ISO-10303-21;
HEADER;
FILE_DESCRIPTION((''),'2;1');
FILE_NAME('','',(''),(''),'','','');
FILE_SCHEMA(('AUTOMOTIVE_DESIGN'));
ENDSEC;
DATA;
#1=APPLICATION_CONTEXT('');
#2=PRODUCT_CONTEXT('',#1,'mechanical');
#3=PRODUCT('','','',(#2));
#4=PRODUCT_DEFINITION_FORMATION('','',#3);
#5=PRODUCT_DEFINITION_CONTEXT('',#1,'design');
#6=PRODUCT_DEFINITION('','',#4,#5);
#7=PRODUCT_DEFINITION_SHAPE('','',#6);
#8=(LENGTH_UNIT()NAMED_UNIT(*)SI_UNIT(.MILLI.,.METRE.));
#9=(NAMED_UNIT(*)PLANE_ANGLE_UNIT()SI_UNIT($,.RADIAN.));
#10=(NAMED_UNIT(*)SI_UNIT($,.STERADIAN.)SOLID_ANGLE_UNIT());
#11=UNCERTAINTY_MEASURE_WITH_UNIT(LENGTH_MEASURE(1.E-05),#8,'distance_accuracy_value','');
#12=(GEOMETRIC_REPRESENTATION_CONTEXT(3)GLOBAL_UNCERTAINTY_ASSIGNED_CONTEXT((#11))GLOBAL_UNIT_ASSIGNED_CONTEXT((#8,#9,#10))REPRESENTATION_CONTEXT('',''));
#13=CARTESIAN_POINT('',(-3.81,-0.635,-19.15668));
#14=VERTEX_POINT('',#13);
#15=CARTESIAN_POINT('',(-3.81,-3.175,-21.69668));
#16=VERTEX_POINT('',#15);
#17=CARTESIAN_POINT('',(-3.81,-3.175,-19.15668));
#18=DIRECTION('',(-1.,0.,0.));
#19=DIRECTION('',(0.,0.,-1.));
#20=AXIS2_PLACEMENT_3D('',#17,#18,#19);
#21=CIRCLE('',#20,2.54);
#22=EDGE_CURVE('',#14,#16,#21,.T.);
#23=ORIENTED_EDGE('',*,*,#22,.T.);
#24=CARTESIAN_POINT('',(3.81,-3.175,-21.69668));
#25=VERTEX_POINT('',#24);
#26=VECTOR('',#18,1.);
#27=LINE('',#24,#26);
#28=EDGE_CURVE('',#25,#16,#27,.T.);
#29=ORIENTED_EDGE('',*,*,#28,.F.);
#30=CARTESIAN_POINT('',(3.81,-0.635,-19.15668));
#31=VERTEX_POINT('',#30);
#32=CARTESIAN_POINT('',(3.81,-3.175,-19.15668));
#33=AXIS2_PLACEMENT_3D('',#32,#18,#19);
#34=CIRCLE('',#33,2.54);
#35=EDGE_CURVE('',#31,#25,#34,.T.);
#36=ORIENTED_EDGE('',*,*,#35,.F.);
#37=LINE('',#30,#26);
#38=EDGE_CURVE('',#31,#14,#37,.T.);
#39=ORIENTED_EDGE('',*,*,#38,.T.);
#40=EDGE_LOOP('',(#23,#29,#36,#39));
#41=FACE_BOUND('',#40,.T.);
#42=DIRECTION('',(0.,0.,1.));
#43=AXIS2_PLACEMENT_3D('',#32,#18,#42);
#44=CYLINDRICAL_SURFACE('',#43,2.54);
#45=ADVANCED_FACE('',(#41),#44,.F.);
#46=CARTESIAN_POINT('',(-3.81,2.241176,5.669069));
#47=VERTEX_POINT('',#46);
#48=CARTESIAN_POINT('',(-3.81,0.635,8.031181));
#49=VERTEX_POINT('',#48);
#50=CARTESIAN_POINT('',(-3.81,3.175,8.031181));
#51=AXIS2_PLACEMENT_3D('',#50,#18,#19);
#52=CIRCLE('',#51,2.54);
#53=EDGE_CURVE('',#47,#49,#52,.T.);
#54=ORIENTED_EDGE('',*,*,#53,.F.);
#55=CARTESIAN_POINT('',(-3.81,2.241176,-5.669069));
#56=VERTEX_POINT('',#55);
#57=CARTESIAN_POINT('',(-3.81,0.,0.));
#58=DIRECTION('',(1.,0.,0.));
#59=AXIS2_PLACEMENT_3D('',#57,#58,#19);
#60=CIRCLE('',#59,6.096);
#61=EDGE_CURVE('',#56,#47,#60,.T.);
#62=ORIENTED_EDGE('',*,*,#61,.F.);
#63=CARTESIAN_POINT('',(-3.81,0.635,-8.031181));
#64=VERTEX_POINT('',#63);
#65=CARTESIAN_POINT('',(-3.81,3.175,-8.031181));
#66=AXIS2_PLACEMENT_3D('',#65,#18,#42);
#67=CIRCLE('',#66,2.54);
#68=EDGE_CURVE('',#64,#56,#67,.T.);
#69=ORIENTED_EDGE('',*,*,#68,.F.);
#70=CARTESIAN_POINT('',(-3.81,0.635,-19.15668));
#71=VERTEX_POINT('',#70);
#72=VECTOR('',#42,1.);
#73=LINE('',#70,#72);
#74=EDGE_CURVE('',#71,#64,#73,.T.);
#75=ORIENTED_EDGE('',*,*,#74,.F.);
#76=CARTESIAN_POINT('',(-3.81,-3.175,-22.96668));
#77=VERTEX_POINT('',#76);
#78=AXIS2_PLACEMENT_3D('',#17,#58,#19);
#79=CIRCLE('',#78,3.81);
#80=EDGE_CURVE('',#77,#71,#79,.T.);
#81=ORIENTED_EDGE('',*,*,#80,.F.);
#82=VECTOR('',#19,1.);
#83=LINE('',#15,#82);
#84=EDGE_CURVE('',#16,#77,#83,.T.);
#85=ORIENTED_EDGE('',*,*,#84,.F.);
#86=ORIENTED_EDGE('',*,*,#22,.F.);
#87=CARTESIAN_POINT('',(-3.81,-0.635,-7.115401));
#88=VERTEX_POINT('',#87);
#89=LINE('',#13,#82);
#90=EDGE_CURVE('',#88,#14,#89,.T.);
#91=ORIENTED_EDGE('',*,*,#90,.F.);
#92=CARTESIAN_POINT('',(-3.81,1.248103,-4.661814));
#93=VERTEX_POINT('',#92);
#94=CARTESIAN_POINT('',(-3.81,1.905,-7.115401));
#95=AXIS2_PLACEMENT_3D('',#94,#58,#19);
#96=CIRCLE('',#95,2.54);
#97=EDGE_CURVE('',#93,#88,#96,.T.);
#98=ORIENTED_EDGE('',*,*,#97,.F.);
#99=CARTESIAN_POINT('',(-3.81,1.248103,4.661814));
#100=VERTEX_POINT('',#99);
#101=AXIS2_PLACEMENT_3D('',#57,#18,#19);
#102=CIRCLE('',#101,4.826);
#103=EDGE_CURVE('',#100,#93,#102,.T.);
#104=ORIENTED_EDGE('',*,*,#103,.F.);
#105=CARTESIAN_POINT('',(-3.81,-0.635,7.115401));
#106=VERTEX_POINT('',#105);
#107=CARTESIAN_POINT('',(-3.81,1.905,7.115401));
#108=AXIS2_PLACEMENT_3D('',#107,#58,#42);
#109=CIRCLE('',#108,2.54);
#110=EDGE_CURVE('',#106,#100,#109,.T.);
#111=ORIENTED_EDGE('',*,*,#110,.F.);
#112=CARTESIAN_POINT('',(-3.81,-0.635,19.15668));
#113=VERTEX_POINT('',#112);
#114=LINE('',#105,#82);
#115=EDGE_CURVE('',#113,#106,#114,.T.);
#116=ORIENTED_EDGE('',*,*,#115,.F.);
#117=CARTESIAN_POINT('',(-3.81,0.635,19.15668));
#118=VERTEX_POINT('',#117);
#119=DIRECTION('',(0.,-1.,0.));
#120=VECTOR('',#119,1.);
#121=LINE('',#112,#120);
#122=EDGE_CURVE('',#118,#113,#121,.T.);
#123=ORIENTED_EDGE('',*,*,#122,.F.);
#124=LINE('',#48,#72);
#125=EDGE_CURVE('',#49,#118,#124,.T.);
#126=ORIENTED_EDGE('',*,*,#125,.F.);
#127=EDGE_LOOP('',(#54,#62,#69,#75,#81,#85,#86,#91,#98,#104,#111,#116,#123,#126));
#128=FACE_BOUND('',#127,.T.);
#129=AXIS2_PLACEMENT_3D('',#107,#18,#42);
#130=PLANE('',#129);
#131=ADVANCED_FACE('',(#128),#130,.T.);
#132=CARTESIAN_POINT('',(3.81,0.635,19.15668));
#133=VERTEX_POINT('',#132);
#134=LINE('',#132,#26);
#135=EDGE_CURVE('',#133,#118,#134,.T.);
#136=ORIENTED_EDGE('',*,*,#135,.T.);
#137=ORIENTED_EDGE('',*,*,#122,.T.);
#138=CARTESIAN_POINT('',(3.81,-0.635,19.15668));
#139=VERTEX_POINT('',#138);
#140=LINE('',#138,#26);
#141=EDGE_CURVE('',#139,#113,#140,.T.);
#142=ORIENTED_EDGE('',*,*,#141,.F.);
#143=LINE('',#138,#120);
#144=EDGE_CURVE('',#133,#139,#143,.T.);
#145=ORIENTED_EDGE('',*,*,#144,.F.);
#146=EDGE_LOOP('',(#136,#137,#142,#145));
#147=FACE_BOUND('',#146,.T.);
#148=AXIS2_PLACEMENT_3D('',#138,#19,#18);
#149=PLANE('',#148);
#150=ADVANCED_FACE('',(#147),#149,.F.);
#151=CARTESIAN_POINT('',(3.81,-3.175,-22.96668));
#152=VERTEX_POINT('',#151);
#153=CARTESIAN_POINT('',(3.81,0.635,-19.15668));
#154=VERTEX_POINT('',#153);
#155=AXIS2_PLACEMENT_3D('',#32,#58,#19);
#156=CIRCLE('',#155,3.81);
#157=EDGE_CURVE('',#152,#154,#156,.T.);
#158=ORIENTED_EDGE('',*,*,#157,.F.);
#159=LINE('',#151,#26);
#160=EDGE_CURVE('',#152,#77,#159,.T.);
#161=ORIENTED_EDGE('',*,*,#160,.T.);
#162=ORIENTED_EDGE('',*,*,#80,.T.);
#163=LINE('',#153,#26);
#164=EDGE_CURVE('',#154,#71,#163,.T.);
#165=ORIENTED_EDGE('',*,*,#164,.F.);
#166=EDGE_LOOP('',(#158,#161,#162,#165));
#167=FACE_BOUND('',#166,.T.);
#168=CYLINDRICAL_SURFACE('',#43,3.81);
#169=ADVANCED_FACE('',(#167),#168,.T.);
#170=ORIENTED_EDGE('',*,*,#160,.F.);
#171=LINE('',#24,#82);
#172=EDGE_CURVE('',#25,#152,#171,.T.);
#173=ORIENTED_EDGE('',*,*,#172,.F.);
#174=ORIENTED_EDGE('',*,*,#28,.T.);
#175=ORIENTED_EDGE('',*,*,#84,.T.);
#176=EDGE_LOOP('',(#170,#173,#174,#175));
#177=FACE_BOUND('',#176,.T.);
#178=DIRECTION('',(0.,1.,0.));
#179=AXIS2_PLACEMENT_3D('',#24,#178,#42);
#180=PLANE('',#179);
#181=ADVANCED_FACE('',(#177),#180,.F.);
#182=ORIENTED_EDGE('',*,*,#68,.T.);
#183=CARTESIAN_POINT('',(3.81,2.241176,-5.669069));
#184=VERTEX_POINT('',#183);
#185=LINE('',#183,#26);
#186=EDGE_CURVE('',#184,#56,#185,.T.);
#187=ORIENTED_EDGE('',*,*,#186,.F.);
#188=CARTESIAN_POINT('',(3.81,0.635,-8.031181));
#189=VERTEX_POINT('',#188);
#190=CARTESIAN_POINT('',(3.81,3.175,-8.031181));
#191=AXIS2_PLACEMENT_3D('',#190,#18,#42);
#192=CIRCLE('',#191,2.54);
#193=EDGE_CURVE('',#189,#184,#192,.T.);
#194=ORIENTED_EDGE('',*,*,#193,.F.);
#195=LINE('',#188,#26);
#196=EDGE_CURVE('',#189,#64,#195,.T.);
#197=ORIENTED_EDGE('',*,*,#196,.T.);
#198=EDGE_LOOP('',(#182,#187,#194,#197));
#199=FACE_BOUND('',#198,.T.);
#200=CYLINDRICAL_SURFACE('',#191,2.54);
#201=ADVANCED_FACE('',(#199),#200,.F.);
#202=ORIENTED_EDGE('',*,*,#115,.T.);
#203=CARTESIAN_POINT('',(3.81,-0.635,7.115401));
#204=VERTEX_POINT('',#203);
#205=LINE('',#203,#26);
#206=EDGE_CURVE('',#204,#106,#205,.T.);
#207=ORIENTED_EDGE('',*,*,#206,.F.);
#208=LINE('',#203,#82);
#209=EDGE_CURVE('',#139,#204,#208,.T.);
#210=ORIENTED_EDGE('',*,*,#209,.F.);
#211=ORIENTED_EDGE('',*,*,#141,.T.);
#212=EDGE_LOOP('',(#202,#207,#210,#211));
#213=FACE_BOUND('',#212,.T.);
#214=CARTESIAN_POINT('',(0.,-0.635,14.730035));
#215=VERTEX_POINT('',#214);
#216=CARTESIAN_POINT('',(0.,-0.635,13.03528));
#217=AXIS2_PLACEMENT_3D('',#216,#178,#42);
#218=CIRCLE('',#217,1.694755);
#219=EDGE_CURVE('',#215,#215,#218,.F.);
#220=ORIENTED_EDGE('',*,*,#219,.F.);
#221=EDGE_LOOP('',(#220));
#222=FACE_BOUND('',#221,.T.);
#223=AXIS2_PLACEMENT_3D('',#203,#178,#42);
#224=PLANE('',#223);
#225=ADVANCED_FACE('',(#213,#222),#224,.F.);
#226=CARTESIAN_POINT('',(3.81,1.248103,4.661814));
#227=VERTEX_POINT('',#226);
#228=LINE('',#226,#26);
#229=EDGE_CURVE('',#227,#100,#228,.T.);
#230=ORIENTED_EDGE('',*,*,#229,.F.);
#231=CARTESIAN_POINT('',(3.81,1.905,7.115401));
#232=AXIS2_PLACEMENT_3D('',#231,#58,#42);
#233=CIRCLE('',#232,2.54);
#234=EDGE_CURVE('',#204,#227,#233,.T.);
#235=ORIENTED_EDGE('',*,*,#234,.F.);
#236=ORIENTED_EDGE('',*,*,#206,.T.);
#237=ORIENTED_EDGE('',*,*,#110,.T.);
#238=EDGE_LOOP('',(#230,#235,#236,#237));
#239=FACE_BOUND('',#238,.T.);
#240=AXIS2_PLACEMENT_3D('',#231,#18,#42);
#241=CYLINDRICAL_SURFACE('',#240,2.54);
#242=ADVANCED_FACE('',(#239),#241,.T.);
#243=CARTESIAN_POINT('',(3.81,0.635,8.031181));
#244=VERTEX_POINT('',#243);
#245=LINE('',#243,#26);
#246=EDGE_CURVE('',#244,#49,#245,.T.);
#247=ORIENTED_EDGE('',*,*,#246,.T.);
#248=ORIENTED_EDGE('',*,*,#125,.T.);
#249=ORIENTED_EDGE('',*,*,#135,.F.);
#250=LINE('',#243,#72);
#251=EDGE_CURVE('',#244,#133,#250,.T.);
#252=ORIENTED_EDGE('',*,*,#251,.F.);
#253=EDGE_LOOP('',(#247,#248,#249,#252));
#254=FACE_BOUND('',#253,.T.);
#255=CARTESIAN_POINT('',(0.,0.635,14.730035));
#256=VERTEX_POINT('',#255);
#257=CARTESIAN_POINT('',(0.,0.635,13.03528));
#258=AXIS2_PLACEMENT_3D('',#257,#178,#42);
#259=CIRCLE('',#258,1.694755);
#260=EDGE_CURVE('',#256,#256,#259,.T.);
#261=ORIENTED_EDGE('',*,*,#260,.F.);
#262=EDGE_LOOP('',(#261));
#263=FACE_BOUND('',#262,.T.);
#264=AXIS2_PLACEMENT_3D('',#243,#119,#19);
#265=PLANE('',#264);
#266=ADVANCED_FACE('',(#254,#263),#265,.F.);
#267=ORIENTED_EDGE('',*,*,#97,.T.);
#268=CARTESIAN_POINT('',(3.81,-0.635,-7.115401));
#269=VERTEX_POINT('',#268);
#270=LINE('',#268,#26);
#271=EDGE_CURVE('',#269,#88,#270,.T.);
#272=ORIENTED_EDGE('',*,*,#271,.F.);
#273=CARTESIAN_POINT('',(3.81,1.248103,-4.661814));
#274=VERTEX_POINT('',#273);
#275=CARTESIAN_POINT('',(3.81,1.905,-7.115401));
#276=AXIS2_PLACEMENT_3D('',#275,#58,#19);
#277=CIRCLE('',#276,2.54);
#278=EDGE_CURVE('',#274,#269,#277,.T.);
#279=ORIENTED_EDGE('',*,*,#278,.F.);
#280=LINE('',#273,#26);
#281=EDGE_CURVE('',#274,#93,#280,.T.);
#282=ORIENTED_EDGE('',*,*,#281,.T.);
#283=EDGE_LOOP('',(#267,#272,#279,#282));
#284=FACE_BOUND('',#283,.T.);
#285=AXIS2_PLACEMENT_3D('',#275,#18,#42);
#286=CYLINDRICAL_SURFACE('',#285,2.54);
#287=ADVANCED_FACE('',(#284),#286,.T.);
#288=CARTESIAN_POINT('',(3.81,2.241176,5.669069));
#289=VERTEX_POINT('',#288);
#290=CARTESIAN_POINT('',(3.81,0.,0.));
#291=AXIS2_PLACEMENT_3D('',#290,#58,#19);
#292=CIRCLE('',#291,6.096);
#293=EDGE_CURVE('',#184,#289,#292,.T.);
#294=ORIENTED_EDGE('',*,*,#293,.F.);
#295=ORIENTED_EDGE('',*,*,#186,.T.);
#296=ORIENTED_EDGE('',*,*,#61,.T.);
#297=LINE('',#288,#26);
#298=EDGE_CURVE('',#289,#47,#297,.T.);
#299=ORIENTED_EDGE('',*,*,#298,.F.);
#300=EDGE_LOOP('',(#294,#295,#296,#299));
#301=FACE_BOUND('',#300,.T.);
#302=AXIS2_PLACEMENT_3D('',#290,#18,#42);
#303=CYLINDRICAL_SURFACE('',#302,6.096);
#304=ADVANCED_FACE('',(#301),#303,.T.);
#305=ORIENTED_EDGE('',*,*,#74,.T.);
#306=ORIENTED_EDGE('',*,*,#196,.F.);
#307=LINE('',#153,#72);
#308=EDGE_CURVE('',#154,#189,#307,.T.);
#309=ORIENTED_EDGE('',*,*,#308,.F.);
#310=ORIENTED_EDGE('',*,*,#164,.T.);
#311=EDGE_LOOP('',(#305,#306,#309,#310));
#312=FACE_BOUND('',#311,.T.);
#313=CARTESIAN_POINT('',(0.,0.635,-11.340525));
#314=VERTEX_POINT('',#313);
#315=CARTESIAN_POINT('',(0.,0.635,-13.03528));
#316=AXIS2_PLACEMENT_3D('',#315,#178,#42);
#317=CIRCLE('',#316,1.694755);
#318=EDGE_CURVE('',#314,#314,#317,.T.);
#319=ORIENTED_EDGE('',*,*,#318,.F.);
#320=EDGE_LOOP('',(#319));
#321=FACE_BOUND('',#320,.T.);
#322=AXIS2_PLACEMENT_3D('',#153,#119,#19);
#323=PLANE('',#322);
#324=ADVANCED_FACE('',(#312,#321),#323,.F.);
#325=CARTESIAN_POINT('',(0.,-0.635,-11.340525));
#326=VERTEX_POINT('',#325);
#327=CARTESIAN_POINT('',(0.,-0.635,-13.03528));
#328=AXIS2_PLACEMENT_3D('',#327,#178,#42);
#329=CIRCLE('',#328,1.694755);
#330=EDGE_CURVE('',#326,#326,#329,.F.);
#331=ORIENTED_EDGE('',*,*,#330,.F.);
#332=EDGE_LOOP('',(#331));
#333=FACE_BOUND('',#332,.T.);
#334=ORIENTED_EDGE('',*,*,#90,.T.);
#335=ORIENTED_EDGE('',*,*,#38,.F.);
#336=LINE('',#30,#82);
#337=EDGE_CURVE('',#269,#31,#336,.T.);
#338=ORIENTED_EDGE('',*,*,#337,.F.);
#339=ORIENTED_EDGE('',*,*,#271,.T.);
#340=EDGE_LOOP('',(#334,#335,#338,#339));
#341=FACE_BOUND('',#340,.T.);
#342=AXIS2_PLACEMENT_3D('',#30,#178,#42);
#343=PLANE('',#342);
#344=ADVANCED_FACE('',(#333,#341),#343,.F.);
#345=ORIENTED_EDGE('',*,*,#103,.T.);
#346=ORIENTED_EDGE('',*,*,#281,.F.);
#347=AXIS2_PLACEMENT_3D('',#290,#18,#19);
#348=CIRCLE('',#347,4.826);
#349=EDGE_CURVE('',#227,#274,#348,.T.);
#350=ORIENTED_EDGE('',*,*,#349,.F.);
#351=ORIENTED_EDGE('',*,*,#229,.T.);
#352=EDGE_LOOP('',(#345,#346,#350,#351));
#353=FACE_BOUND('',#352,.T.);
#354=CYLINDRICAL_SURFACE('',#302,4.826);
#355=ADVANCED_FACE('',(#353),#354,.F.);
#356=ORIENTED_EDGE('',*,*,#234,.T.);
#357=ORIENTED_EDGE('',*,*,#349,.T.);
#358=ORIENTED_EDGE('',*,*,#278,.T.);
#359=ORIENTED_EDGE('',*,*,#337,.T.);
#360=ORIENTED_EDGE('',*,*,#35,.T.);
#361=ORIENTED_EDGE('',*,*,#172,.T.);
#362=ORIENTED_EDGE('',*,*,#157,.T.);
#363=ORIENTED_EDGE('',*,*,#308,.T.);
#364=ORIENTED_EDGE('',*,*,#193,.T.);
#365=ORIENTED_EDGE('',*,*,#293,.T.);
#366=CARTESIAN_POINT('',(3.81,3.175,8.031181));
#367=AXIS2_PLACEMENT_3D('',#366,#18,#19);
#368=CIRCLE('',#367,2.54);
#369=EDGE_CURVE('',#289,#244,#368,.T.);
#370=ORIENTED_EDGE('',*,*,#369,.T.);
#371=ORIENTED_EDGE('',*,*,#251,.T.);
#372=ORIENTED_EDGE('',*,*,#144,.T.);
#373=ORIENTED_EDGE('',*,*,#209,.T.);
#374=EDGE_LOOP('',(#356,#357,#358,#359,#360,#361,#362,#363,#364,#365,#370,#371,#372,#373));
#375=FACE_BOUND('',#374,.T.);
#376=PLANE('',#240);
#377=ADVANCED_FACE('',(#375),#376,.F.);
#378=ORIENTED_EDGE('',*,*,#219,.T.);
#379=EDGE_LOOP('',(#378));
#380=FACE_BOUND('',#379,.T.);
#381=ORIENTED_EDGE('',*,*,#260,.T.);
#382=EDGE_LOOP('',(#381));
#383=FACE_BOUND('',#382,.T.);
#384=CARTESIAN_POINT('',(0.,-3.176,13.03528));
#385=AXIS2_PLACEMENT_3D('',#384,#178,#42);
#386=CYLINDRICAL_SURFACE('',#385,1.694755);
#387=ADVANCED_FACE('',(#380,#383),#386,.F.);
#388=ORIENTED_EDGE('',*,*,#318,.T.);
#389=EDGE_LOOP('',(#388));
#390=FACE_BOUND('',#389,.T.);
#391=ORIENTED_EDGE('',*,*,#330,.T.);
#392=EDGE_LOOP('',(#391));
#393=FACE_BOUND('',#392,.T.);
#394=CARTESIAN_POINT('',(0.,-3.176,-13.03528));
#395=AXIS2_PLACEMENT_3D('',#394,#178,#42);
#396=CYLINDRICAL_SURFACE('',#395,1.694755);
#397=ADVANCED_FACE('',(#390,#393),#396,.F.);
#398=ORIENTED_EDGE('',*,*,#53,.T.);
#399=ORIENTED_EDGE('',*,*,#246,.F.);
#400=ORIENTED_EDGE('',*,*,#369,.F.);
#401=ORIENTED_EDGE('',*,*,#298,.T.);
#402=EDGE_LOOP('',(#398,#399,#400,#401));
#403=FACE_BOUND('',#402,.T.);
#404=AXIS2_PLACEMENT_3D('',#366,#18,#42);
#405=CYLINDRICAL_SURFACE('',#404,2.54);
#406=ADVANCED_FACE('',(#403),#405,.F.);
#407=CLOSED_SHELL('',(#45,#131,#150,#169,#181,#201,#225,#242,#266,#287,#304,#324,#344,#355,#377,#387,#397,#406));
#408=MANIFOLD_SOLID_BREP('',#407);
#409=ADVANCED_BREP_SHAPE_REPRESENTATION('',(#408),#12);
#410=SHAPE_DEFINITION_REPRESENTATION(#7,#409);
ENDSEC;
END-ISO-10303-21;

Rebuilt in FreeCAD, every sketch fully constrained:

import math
import FreeCAD as App
import Part
import Sketcher
from FreeCAD import Vector
Q = App.Units.Quantity

doc = App.newDocument("Part")
body = doc.addObject("PartDesign::Body", "Body")

# Sketch on YZ plane
sketch1 = body.newObject("Sketcher::SketchObject", "Sketch")
sketch1.AttachmentSupport = (doc.getObject("YZ_Plane"), [""])
sketch1.MapMode = "FlatFace"
sketch1.addGeometry(Part.LineSegment(Vector(-3.2, -21.7, 0), Vector(-3.2, -23, 0)), False)
sketch1.addGeometry(Part.ArcOfCircle(Part.Circle(Vector(-3.2, -19.2, 0), Vector(0, 0, 1), 3.8), math.radians(-90), math.radians(0)), False)
sketch1.addGeometry(Part.LineSegment(Vector(0.6, -19.2, 0), Vector(0.6, -8, 0)), False)
sketch1.addGeometry(Part.ArcOfCircle(Part.Circle(Vector(3.2, -8, 0), Vector(0, 0, 1), 2.5), math.radians(112), math.radians(180)), False)
sketch1.addGeometry(Part.ArcOfCircle(Part.Circle(Vector(0, 0, 0), Vector(0, 0, 1), 6.1), math.radians(-68), math.radians(68)), False)
sketch1.addGeometry(Part.ArcOfCircle(Part.Circle(Vector(3.2, 8, 0), Vector(0, 0, 1), 2.5), math.radians(180), math.radians(248)), False)
sketch1.addGeometry(Part.LineSegment(Vector(0.6, 8, 0), Vector(0.6, 19.2, 0)), False)
sketch1.addGeometry(Part.LineSegment(Vector(0.6, 19.2, 0), Vector(-0.6, 19.2, 0)), False)
sketch1.addGeometry(Part.LineSegment(Vector(-0.6, 19.2, 0), Vector(-0.6, 7.1, 0)), False)
sketch1.addGeometry(Part.ArcOfCircle(Part.Circle(Vector(1.9, 7.1, 0), Vector(0, 0, 1), 2.5), math.radians(-180), math.radians(-105)), False)
sketch1.addGeometry(Part.ArcOfCircle(Part.Circle(Vector(0, 0, 0), Vector(0, 0, 1), 4.8), math.radians(-75), math.radians(75)), False)
sketch1.addGeometry(Part.ArcOfCircle(Part.Circle(Vector(1.9, -7.1, 0), Vector(0, 0, 1), 2.5), math.radians(105), math.radians(180)), False)
sketch1.addGeometry(Part.LineSegment(Vector(-0.6, -7.1, 0), Vector(-0.6, -19.2, 0)), False)
sketch1.addGeometry(Part.ArcOfCircle(Part.Circle(Vector(-3.2, -19.2, 0), Vector(0, 0, 1), 2.5), math.radians(-90), math.radians(0)), False)
sketch1.addConstraint(Sketcher.Constraint("Coincident", 0, 2, 1, 1))
sketch1.addConstraint(Sketcher.Constraint("Tangent", 1, 2, 2, 1))
sketch1.addConstraint(Sketcher.Constraint("Tangent", 2, 2, 3, 2))
sketch1.addConstraint(Sketcher.Constraint("Tangent", 3, 1, 4, 1))
sketch1.addConstraint(Sketcher.Constraint("Tangent", 4, 2, 5, 2))
sketch1.addConstraint(Sketcher.Constraint("Tangent", 5, 1, 6, 1))
sketch1.addConstraint(Sketcher.Constraint("Coincident", 6, 2, 7, 1))
sketch1.addConstraint(Sketcher.Constraint("Coincident", 7, 2, 8, 1))
sketch1.addConstraint(Sketcher.Constraint("Tangent", 8, 2, 9, 1))
sketch1.addConstraint(Sketcher.Constraint("Tangent", 9, 2, 10, 2))
sketch1.addConstraint(Sketcher.Constraint("Tangent", 10, 1, 11, 1))
sketch1.addConstraint(Sketcher.Constraint("Tangent", 11, 2, 12, 1))
sketch1.addConstraint(Sketcher.Constraint("Tangent", 12, 2, 13, 2))
sketch1.addConstraint(Sketcher.Constraint("Coincident", 13, 1, 0, 1))
sketch1.addConstraint(Sketcher.Constraint("Vertical", 0))
sketch1.addConstraint(Sketcher.Constraint("Vertical", 2))
sketch1.addConstraint(Sketcher.Constraint("Vertical", 6))
sketch1.addConstraint(Sketcher.Constraint("Horizontal", 7))
sketch1.addConstraint(Sketcher.Constraint("Vertical", 8))
sketch1.addConstraint(Sketcher.Constraint("Vertical", 12))
sketch1.addConstraint(Sketcher.Constraint("Coincident", 4, 3, -1, 1))
sketch1.addConstraint(Sketcher.Constraint("Coincident", 10, 3, -1, 1))
sketch1.addConstraint(Sketcher.Constraint("Coincident", 13, 3, 1, 3))
sketch1.addConstraint(Sketcher.Constraint("Equal", 3, 5))
sketch1.addConstraint(Sketcher.Constraint("Equal", 5, 9))
sketch1.addConstraint(Sketcher.Constraint("Equal", 9, 11))
sketch1.addConstraint(Sketcher.Constraint("Equal", 11, 13))
sketch1.addConstraint(Sketcher.Constraint("Symmetric", 1, 2, 7, 2, -1, 1))
sketch1.addConstraint(Sketcher.Constraint("Vertical", 3, 3, 5, 3))
sketch1.addConstraint(Sketcher.Constraint("Vertical", 9, 3, 11, 3))
sketch1.addConstraint(Sketcher.Constraint("Vertical", 13, 3, 0, 2))
sketch1.addConstraint(Sketcher.Constraint("Radius", 3, Q("0.1 in")))
sketch1.addConstraint(Sketcher.Constraint("Radius", 1, Q("0.15 in")))
sketch1.addConstraint(Sketcher.Constraint("Radius", 4, Q("0.24 in")))
sketch1.addConstraint(Sketcher.Constraint("Radius", 10, Q("0.19 in")))
sketch1.addConstraint(Sketcher.Constraint("DistanceY", 2, 1, 2, 2, Q("11.125499 mm")))
pad1 = body.newObject("PartDesign::Pad", "Pad")
pad1.Profile = sketch1
pad1.Length = Q("0.3 in")
pad1.Midplane = True

# Sketch on XZ plane
sketch2 = body.newObject("Sketcher::SketchObject", "Sketch001")
sketch2.AttachmentSupport = (doc.getObject("XZ_Plane"), [""])
sketch2.MapMode = "FlatFace"
sketch2.AttachmentOffset = App.Placement(Vector(0, 0, -0.025 * 25.4), App.Rotation())
sketch2.addGeometry(Part.Circle(Vector(0, -13, 0), Vector(0, 0, 1), 1.7), False)
sketch2.addConstraint(Sketcher.Constraint("PointOnObject", 0, 3, -2))
sketch2.addConstraint(Sketcher.Constraint("Diameter", 0, Q("3.38951 mm")))
sketch2.addConstraint(Sketcher.Constraint("DistanceY", 0, 3, -1, 1, Q("0.5132 in")))
pocket1 = body.newObject("PartDesign::Pocket", "Pocket")
pocket1.Profile = sketch2
pocket1.Type = "UpToFirst"
pocket1.Reversed = True

# Sketch on XZ plane
sketch3 = body.newObject("Sketcher::SketchObject", "Sketch002")
sketch3.AttachmentSupport = (doc.getObject("XZ_Plane"), [""])
sketch3.MapMode = "FlatFace"
sketch3.AttachmentOffset = App.Placement(Vector(0, 0, -0.025 * 25.4), App.Rotation())
sketch3.addGeometry(Part.Circle(Vector(0, 13, 0), Vector(0, 0, 1), 1.7), False)
sketch3.addConstraint(Sketcher.Constraint("PointOnObject", 0, 3, -2))
sketch3.addConstraint(Sketcher.Constraint("Diameter", 0, Q("3.38951 mm")))
sketch3.addConstraint(Sketcher.Constraint("DistanceY", -1, 1, 0, 3, Q("0.5132 in")))
pocket2 = body.newObject("PartDesign::Pocket", "Pocket001")
pocket2.Profile = sketch3
pocket2.Type = "UpToFirst"
pocket2.Reversed = True

doc.recompute()
